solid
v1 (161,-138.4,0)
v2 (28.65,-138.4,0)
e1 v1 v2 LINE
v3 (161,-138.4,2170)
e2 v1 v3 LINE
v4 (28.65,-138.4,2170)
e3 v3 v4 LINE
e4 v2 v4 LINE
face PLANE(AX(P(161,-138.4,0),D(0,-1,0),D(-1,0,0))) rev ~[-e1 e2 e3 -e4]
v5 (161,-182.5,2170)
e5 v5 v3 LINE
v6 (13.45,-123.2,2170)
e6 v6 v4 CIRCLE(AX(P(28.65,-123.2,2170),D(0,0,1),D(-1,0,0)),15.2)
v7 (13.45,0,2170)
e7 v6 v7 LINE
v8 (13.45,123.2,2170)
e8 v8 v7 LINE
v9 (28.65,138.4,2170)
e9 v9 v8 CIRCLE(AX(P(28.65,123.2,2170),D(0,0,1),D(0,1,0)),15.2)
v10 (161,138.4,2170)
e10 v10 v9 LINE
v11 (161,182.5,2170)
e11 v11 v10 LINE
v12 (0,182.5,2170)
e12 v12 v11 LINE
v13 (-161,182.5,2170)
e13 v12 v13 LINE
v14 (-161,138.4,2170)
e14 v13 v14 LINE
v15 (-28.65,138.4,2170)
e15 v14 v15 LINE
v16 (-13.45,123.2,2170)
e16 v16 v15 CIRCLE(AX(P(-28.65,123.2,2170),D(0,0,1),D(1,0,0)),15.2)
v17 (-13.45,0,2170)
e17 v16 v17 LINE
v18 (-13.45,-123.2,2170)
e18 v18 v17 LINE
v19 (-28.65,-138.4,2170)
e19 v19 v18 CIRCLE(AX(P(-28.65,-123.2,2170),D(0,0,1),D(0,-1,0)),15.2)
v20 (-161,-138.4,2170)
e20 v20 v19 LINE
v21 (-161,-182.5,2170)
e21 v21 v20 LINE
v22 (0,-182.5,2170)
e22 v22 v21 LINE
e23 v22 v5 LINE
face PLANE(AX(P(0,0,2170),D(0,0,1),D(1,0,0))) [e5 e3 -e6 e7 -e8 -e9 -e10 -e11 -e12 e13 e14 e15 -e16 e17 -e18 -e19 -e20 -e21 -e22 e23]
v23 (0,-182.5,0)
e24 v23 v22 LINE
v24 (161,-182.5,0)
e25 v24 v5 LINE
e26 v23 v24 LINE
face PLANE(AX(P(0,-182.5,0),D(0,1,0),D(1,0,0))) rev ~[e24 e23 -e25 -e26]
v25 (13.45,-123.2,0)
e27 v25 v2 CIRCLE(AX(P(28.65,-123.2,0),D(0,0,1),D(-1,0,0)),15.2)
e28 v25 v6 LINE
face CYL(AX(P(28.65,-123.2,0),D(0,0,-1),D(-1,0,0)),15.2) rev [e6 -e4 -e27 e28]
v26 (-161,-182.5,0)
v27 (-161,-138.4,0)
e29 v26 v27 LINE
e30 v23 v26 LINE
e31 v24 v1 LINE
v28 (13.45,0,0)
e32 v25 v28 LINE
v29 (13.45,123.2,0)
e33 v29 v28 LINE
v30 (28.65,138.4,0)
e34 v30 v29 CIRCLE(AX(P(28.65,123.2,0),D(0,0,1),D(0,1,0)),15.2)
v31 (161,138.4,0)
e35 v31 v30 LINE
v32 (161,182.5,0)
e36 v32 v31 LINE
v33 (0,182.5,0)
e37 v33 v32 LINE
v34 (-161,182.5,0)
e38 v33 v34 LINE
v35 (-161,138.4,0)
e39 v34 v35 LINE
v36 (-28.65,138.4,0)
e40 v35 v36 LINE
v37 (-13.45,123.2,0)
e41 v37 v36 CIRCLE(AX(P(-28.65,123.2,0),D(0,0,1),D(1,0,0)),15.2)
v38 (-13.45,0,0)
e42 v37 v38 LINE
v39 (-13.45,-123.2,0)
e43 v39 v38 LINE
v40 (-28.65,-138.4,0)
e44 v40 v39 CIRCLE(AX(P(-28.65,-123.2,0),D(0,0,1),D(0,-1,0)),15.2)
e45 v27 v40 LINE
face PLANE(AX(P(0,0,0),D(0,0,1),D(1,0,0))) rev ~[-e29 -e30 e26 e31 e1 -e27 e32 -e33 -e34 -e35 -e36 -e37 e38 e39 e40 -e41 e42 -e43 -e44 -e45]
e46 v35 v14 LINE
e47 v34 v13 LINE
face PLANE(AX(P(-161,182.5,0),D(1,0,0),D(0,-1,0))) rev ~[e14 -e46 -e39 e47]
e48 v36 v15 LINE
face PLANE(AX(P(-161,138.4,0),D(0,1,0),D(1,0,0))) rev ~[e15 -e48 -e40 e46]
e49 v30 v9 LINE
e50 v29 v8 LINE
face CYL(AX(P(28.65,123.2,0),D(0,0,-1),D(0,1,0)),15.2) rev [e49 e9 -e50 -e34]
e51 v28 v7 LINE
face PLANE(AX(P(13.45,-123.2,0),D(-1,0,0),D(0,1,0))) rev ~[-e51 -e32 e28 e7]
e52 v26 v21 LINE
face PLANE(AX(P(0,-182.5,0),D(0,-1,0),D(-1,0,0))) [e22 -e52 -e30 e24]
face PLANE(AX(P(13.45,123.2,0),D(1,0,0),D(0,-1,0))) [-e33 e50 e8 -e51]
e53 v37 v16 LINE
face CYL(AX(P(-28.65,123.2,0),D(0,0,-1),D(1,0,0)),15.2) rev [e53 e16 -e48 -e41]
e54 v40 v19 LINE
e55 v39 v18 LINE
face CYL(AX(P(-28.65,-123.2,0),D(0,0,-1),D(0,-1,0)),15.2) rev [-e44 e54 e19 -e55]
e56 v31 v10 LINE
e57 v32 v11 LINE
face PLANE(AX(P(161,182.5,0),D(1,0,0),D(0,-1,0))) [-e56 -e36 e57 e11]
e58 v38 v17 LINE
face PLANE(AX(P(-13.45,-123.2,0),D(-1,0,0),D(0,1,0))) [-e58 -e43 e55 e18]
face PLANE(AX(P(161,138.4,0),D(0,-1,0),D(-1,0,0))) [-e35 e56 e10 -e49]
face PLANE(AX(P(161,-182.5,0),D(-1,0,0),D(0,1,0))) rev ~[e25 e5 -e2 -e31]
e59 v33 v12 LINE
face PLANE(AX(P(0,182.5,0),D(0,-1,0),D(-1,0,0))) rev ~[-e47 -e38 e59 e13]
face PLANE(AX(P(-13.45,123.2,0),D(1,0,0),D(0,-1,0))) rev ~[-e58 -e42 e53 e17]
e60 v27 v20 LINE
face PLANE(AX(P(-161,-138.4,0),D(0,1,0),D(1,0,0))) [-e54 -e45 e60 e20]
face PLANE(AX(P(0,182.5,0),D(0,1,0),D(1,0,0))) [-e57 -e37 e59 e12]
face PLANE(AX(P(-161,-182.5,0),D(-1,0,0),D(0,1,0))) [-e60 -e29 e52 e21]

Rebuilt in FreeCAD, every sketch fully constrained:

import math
import FreeCAD as App
import Part
import Sketcher
from FreeCAD import Vector

doc = App.newDocument("Part")
body = doc.addObject("PartDesign::Body", "Body")

# Sketch on XY plane
sketch1 = body.newObject("Sketcher::SketchObject", "Sketch")
sketch1.AttachmentSupport = (doc.getObject("XY_Plane"), [""])
sketch1.MapMode = "FlatFace"
sketch1.addGeometry([
    Part.LineSegment(Vector(-161, -138, 0), Vector(-161, -182, 0)),  # 0
    Part.LineSegment(Vector(-161, -182, 0), Vector(161, -182, 0)),  # 1
    Part.LineSegment(Vector(161, -182, 0), Vector(161, -138, 0)),  # 2
    Part.LineSegment(Vector(161, -138, 0), Vector(29, -138, 0)),  # 3
    Part.ArcOfCircle(Part.Circle(Vector(29, -123, 0), Vector(0, 0, 1), 15), math.radians(180), math.radians(270)),  # 4
    Part.LineSegment(Vector(13, -123, 0), Vector(13, 123, 0)),  # 5
    Part.ArcOfCircle(Part.Circle(Vector(29, 123, 0), Vector(0, 0, 1), 15), math.radians(90), math.radians(180)),  # 6
    Part.LineSegment(Vector(29, 138, 0), Vector(161, 138, 0)),  # 7
    Part.LineSegment(Vector(161, 138, 0), Vector(161, 182, 0)),  # 8
    Part.LineSegment(Vector(161, 182, 0), Vector(-161, 182, 0)),  # 9
    Part.LineSegment(Vector(-161, 182, 0), Vector(-161, 138, 0)),  # 10
    Part.LineSegment(Vector(-161, 138, 0), Vector(-29, 138, 0)),  # 11
    Part.ArcOfCircle(Part.Circle(Vector(-29, 123, 0), Vector(0, 0, 1), 15), math.radians(0), math.radians(90)),  # 12
    Part.LineSegment(Vector(-13, 123, 0), Vector(-13, -123, 0)),  # 13
    Part.ArcOfCircle(Part.Circle(Vector(-29, -123, 0), Vector(0, 0, 1), 15), math.radians(-90), math.radians(0)),  # 14
    Part.LineSegment(Vector(-29, -138, 0), Vector(-161, -138, 0)),  # 15
], False)
sketch1.addConstraint([
    Sketcher.Constraint("Coincident", 0, 2, 1, 1),
    Sketcher.Constraint("Coincident", 1, 2, 2, 1),
    Sketcher.Constraint("Coincident", 2, 2, 3, 1),
    Sketcher.Constraint("Tangent", 3, 2, 4, 2),
    Sketcher.Constraint("Tangent", 4, 1, 5, 1),
    Sketcher.Constraint("Tangent", 5, 2, 6, 2),
    Sketcher.Constraint("Tangent", 6, 1, 7, 1),
    Sketcher.Constraint("Coincident", 7, 2, 8, 1),
    Sketcher.Constraint("Coincident", 8, 2, 9, 1),
    Sketcher.Constraint("Coincident", 9, 2, 10, 1),
    Sketcher.Constraint("Coincident", 10, 2, 11, 1),
    Sketcher.Constraint("Tangent", 11, 2, 12, 2),
    Sketcher.Constraint("Tangent", 12, 1, 13, 1),
    Sketcher.Constraint("Tangent", 13, 2, 14, 2),
    Sketcher.Constraint("Tangent", 14, 1, 15, 1),
    Sketcher.Constraint("Coincident", 15, 2, 0, 1),
    Sketcher.Constraint("Vertical", 0),
    Sketcher.Constraint("Horizontal", 1),
    Sketcher.Constraint("Vertical", 2),
    Sketcher.Constraint("Horizontal", 3),
    Sketcher.Constraint("Vertical", 5),
    Sketcher.Constraint("Horizontal", 7),
    Sketcher.Constraint("Vertical", 8),
    Sketcher.Constraint("Horizontal", 9),
    Sketcher.Constraint("Vertical", 10),
    Sketcher.Constraint("Horizontal", 11),
    Sketcher.Constraint("Vertical", 13),
    Sketcher.Constraint("Horizontal", 15),
    Sketcher.Constraint("Equal", 4, 6),
    Sketcher.Constraint("Equal", 6, 12),
    Sketcher.Constraint("Equal", 12, 14),
    Sketcher.Constraint("Symmetric", 4, 3, 12, 3, -1, 1),
    Sketcher.Constraint("Symmetric", 0, 2, 8, 2, -1, 1),
    Sketcher.Constraint("Symmetric", 7, 2, 10, 2, -2),
    Sketcher.Constraint("Symmetric", 2, 2, 15, 2, -2),
    Sketcher.Constraint("Radius", 4, 15.2),
    Sketcher.Constraint("DistanceY", 0, 2, 0, 1, 44.1),
    Sketcher.Constraint("DistanceX", 0, 2, -1, 1, 161.0),
    Sketcher.Constraint("DistanceY", 0, 2, -1, 1, 182.5),
    Sketcher.Constraint("DistanceX", -1, 1, 4, 1, 13.45),
])
pad1 = body.newObject("PartDesign::Pad", "Pad")
pad1.Profile = sketch1
pad1.Length = 2170

doc.recompute()
